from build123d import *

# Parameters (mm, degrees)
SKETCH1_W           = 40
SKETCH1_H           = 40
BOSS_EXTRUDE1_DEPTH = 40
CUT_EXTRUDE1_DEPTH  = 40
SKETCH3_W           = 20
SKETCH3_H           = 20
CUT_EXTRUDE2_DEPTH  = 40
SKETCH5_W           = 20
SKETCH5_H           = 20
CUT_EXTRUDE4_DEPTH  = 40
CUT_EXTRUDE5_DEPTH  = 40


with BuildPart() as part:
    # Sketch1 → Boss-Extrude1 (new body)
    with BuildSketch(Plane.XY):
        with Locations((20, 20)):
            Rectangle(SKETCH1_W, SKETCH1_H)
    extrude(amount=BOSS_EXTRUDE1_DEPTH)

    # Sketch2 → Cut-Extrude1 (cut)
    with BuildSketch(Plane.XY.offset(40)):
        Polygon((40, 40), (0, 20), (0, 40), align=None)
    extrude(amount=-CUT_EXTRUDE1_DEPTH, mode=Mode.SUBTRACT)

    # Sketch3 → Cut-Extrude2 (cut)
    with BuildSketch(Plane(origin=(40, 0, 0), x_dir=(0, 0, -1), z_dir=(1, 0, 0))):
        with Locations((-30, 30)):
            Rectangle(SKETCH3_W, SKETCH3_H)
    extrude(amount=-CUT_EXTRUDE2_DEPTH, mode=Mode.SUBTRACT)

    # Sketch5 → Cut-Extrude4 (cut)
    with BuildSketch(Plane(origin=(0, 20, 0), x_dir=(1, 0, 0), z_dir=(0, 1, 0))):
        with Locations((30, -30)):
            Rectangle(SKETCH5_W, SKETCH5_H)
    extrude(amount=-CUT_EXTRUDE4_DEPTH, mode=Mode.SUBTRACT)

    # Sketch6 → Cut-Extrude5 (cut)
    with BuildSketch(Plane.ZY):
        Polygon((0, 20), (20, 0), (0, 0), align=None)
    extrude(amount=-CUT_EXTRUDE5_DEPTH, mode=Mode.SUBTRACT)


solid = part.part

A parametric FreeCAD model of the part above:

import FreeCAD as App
import Part
import Sketcher

V = App.Vector
Q = App.Units.Quantity

doc = App.newDocument("Part")
body = doc.addObject("PartDesign::Body", "Body")

sketch1 = body.newObject("Sketcher::SketchObject", "Sketch")
sketch1.AttachmentSupport = (doc.getObject("XY_Plane"), [""])
sketch1.MapMode = "FlatFace"
sketch1.addGeometry([
    Part.LineSegment(V(0, 40, 0), V(0, 0, 0)),
    Part.LineSegment(V(0, 0, 0), V(40, 0, 0)),
    Part.LineSegment(V(40, 0, 0), V(40, 40, 0)),
    Part.LineSegment(V(40, 40, 0), V(0, 40, 0)),
], False)
sketch1.addConstraint([
    Sketcher.Constraint("Coincident", 0, 2, 1, 1),
    Sketcher.Constraint("Coincident", 1, 2, 2, 1),
    Sketcher.Constraint("Coincident", 2, 2, 3, 1),
    Sketcher.Constraint("Coincident", 3, 2, 0, 1),
    Sketcher.Constraint("Vertical", 0),
    Sketcher.Constraint("Horizontal", 1),
    Sketcher.Constraint("Vertical", 2),
    Sketcher.Constraint("Horizontal", 3),
    Sketcher.Constraint("Coincident", 0, 2, -1, 1),
    Sketcher.Constraint("Equal", 3, 0),
    Sketcher.Constraint("DistanceX", 1, 1, 1, 2, Q("40 mm")),
])
pad1 = body.newObject("PartDesign::Pad", "Pad")
pad1.Profile = sketch1
pad1.Length = 40

sketch2 = body.newObject("Sketcher::SketchObject", "Sketch001")
sketch2.AttachmentSupport = (doc.getObject("XY_Plane"), [""])
sketch2.MapMode = "FlatFace"
sketch2.AttachmentOffset = App.Placement(V(0, 0, 40), App.Rotation())
sketch2.addGeometry([
    Part.LineSegment(V(0, 20, 0), V(40, 40, 0)),
    Part.LineSegment(V(40, 40, 0), V(0, 40, 0)),
    Part.LineSegment(V(0, 40, 0), V(0, 20, 0)),
], False)
sketch2.addConstraint([
    Sketcher.Constraint("Coincident", 0, 2, 1, 1),
    Sketcher.Constraint("Coincident", 1, 2, 2, 1),
    Sketcher.Constraint("Coincident", 2, 2, 0, 1),
    Sketcher.Constraint("Horizontal", 1),
    Sketcher.Constraint("Vertical", 2),
    Sketcher.Constraint("PointOnObject", 1, 2, -2),
    Sketcher.Constraint("DistanceX", 1, 2, 1, 1, Q("40 mm")),
    Sketcher.Constraint("DistanceY", 2, 2, 2, 1, Q("20 mm")),
    Sketcher.Constraint("DistanceY", -1, 1, 0, 2, Q("40 mm")),
])
pocket1 = body.newObject("PartDesign::Pocket", "Pocket")
pocket1.Profile = sketch2
pocket1.Length = 40

sketch3 = body.newObject("Sketcher::SketchObject", "Sketch002")
sketch3.AttachmentSupport = (doc.getObject("YZ_Plane"), [""])
sketch3.MapMode = "FlatFace"
sketch3.AttachmentOffset = App.Placement(V(0, 0, 40), App.Rotation())
sketch3.addGeometry([
    Part.LineSegment(V(40, 40, 0), V(20, 40, 0)),
    Part.LineSegment(V(20, 40, 0), V(20, 20, 0)),
    Part.LineSegment(V(20, 20, 0), V(40, 20, 0)),
    Part.LineSegment(V(40, 20, 0), V(40, 40, 0)),
], False)
sketch3.addConstraint([
    Sketcher.Constraint("Coincident", 0, 2, 1, 1),
    Sketcher.Constraint("Coincident", 1, 2, 2, 1),
    Sketcher.Constraint("Coincident", 2, 2, 3, 1),
    Sketcher.Constraint("Coincident", 3, 2, 0, 1),
    Sketcher.Constraint("Horizontal", 0),
    Sketcher.Constraint("Vertical", 1),
    Sketcher.Constraint("Horizontal", 2),
    Sketcher.Constraint("Vertical", 3),
    Sketcher.Constraint("Equal", 2, 1),
    Sketcher.Constraint("DistanceX", 0, 2, 0, 1, Q("20 mm")),
    Sketcher.Constraint("DistanceX", -1, 1, 0, 2, Q("20 mm")),
    Sketcher.Constraint("DistanceY", -1, 1, 0, 2, Q("40 mm")),
])
pocket2 = body.newObject("PartDesign::Pocket", "Pocket001")
pocket2.Profile = sketch3
pocket2.Length = 40

sketch4 = body.newObject("Sketcher::SketchObject", "Sketch003")
sketch4.AttachmentSupport = (doc.getObject("XZ_Plane"), [""])
sketch4.MapMode = "FlatFace"
sketch4.AttachmentOffset = App.Placement(V(0, 0, -20), App.Rotation())
sketch4.addGeometry([
    Part.LineSegment(V(20, 20, 0), V(20, 40, 0)),
    Part.LineSegment(V(20, 40, 0), V(40, 40, 0)),
    Part.LineSegment(V(40, 40, 0), V(40, 20, 0)),
    Part.LineSegment(V(40, 20, 0), V(20, 20, 0)),
], False)
sketch4.addConstraint([
    Sketcher.Constraint("Coincident", 0, 2, 1, 1),
    Sketcher.Constraint("Coincident", 1, 2, 2, 1),
    Sketcher.Constraint("Coincident", 2, 2, 3, 1),
    Sketcher.Constraint("Coincident", 3, 2, 0, 1),
    Sketcher.Constraint("Vertical", 0),
    Sketcher.Constraint("Horizontal", 1),
    Sketcher.Constraint("Vertical", 2),
    Sketcher.Constraint("Horizontal", 3),
    Sketcher.Constraint("Equal", 3, 0),
    Sketcher.Constraint("DistanceX", 1, 1, 1, 2, Q("20 mm")),
    Sketcher.Constraint("DistanceX", -1, 1, 0, 2, Q("20 mm")),
    Sketcher.Constraint("DistanceY", -1, 1, 0, 2, Q("40 mm")),
])
pocket3 = body.newObject("PartDesign::Pocket", "Pocket002")
pocket3.Profile = sketch4
pocket3.Length = 40
pocket3.Reversed = True

sketch5 = body.newObject("Sketcher::SketchObject", "Sketch004")
sketch5.AttachmentSupport = (doc.getObject("YZ_Plane"), [""])
sketch5.MapMode = "FlatFace"
sketch5.addGeometry([
    Part.LineSegment(V(0, 20, 0), V(20, 0, 0)),
    Part.LineSegment(V(20, 0, 0), V(0, 0, 0)),
    Part.LineSegment(V(0, 0, 0), V(0, 20, 0)),
], False)
sketch5.addConstraint([
    Sketcher.Constraint("Coincident", 0, 2, 1, 1),
    Sketcher.Constraint("Coincident", 1, 2, 2, 1),
    Sketcher.Constraint("Coincident", 2, 2, 0, 1),
    Sketcher.Constraint("Horizontal", 1),
    Sketcher.Constraint("Vertical", 2),
    Sketcher.Constraint("Coincident", 1, 2, -1, 1),
    Sketcher.Constraint("Equal", 1, 2),
    Sketcher.Constraint("DistanceX", 1, 2, 1, 1, Q("20 mm")),
])
pocket4 = body.newObject("PartDesign::Pocket", "Pocket003")
pocket4.Profile = sketch5
pocket4.Length = 40
pocket4.Reversed = True

doc.recompute()
